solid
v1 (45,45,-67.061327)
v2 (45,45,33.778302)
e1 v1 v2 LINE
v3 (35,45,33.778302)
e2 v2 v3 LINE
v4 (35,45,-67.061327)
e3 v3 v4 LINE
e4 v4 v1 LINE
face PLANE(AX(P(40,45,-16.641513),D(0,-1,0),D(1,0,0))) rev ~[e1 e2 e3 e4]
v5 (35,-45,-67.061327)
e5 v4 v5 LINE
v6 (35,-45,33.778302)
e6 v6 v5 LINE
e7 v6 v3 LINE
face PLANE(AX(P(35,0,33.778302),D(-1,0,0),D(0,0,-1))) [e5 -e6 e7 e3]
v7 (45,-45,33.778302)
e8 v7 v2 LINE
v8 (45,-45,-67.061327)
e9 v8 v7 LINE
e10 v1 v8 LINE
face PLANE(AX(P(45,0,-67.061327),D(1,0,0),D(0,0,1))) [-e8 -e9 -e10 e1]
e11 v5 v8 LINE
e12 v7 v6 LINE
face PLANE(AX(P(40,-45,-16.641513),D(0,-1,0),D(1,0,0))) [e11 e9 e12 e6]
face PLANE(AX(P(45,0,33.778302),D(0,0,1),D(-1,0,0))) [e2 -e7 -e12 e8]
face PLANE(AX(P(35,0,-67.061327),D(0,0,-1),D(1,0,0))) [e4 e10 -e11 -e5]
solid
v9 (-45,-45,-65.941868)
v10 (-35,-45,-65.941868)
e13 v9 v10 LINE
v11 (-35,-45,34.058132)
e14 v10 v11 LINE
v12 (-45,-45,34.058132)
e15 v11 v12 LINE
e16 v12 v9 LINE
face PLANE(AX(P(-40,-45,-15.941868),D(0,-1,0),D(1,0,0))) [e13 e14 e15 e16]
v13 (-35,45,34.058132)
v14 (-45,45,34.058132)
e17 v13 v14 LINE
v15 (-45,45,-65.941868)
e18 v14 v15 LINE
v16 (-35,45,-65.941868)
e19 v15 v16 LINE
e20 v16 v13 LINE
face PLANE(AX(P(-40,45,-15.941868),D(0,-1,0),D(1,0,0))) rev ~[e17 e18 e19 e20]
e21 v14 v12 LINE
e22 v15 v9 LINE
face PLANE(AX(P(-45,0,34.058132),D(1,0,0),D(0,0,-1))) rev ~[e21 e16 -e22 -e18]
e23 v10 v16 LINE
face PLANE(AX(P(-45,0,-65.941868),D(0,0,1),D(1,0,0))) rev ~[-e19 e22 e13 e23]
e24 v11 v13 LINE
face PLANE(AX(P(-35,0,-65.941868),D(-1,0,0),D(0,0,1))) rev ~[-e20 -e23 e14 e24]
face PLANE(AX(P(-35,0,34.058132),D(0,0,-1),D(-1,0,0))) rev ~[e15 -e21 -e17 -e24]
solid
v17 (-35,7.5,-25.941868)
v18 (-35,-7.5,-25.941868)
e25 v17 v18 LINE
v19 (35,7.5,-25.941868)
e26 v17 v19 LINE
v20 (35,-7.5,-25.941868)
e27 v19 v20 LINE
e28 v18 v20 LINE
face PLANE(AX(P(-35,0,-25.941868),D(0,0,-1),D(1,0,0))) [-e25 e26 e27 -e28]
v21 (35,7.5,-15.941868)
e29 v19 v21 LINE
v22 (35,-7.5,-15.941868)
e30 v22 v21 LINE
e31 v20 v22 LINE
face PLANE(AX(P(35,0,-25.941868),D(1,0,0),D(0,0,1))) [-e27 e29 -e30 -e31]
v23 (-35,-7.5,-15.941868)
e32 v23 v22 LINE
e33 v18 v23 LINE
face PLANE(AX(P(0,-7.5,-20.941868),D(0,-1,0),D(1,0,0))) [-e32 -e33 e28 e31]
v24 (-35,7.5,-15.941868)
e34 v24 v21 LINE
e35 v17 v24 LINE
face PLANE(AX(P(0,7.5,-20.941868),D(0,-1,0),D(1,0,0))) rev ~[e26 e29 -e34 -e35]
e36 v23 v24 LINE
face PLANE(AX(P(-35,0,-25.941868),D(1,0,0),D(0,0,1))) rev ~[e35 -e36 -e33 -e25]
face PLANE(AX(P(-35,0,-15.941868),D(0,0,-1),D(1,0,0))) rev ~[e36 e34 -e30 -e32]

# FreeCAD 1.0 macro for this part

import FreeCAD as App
import Part
import Sketcher

V = App.Vector

doc = App.newDocument("Part")
body = doc.addObject("PartDesign::Body", "Body")
body.AllowCompound = True

# Sketch on XZ plane
sketch1 = body.newObject("Sketcher::SketchObject", "Sketch")
sketch1.AttachmentSupport = (doc.getObject("XZ_Plane"), [""])
sketch1.MapMode = "FlatFace"
sketch1.addGeometry(Part.LineSegment(V(-35, 34, 0), V(-45, 34, 0)), False)
sketch1.addGeometry(Part.LineSegment(V(-45, 34, 0), V(-45, -66, 0)), False)
sketch1.addGeometry(Part.LineSegment(V(-45, -66, 0), V(-35, -66, 0)), False)
sketch1.addGeometry(Part.LineSegment(V(-35, -66, 0), V(-35, 34, 0)), False)
sketch1.addGeometry(Part.LineSegment(V(35, 34, 0), V(35, -67, 0)), False)
sketch1.addGeometry(Part.LineSegment(V(35, -67, 0), V(45, -67, 0)), False)
sketch1.addGeometry(Part.LineSegment(V(45, -67, 0), V(45, 34, 0)), False)
sketch1.addGeometry(Part.LineSegment(V(45, 34, 0), V(35, 34, 0)), False)
sketch1.addConstraint(Sketcher.Constraint("Coincident", 0, 2, 1, 1))
sketch1.addConstraint(Sketcher.Constraint("Coincident", 1, 2, 2, 1))
sketch1.addConstraint(Sketcher.Constraint("Coincident", 2, 2, 3, 1))
sketch1.addConstraint(Sketcher.Constraint("Coincident", 3, 2, 0, 1))
sketch1.addConstraint(Sketcher.Constraint("Coincident", 4, 2, 5, 1))
sketch1.addConstraint(Sketcher.Constraint("Coincident", 5, 2, 6, 1))
sketch1.addConstraint(Sketcher.Constraint("Coincident", 6, 2, 7, 1))
sketch1.addConstraint(Sketcher.Constraint("Coincident", 7, 2, 4, 1))
sketch1.addConstraint(Sketcher.Constraint("Horizontal", 0))
sketch1.addConstraint(Sketcher.Constraint("Vertical", 1))
sketch1.addConstraint(Sketcher.Constraint("Horizontal", 2))
sketch1.addConstraint(Sketcher.Constraint("Vertical", 3))
sketch1.addConstraint(Sketcher.Constraint("Vertical", 4))
sketch1.addConstraint(Sketcher.Constraint("Horizontal", 5))
sketch1.addConstraint(Sketcher.Constraint("Vertical", 6))
sketch1.addConstraint(Sketcher.Constraint("Horizontal", 7))
sketch1.addConstraint(Sketcher.Constraint("Equal", 2, 5))
sketch1.addConstraint(Sketcher.Constraint("DistanceX", 0, 2, 0, 1, 10.0))
sketch1.addConstraint(Sketcher.Constraint("DistanceY", 1, 2, 1, 1, 100.0))
sketch1.addConstraint(Sketcher.Constraint("DistanceX", 0, 2, -1, 1, 45.0))
sketch1.addConstraint(Sketcher.Constraint("DistanceX", -1, 1, 4, 2, 35.0))
sketch1.addConstraint(Sketcher.Constraint("DistanceY", 4, 2, 4, 1, 100.839629))
sketch1.addConstraint(Sketcher.Constraint("DistanceY", -1, 1, 6, 2, 33.778302))
sketch1.addConstraint(Sketcher.Constraint("DistanceY", 1, 2, -1, 1, 65.941868))
pad1 = body.newObject("PartDesign::Pad", "Pad")
pad1.Profile = sketch1
pad1.Length = 90
pad1.Midplane = True
body2 = doc.addObject("PartDesign::Body", "Body001")

# Sketch on XZ plane
sketch2 = body2.newObject("Sketcher::SketchObject", "Sketch001")
sketch2.AttachmentSupport = (doc.getObject("XZ_Plane001"), [""])
sketch2.MapMode = "FlatFace"
sketch2.addGeometry(Part.LineSegment(V(-35, -16, 0), V(-35, -26, 0)), False)
sketch2.addGeometry(Part.LineSegment(V(-35, -26, 0), V(35, -26, 0)), False)
sketch2.addGeometry(Part.LineSegment(V(35, -26, 0), V(35, -16, 0)), False)
sketch2.addGeometry(Part.LineSegment(V(35, -16, 0), V(-35, -16, 0)), False)
sketch2.addConstraint(Sketcher.Constraint("Coincident", 0, 2, 1, 1))
sketch2.addConstraint(Sketcher.Constraint("Coincident", 1, 2, 2, 1))
sketch2.addConstraint(Sketcher.Constraint("Coincident", 2, 2, 3, 1))
sketch2.addConstraint(Sketcher.Constraint("Coincident", 3, 2, 0, 1))
sketch2.addConstraint(Sketcher.Constraint("Vertical", 0))
sketch2.addConstraint(Sketcher.Constraint("Horizontal", 1))
sketch2.addConstraint(Sketcher.Constraint("Vertical", 2))
sketch2.addConstraint(Sketcher.Constraint("Horizontal", 3))
sketch2.addConstraint(Sketcher.Constraint("DistanceX", 1, 1, 1, 2, 70.0))
sketch2.addConstraint(Sketcher.Constraint("DistanceY", 0, 2, 0, 1, 10.0))
sketch2.addConstraint(Sketcher.Constraint("DistanceX", 0, 2, -1, 1, 35.0))
sketch2.addConstraint(Sketcher.Constraint("DistanceY", 0, 2, -1, 1, 25.941868))
pad2 = body2.newObject("PartDesign::Pad", "Pad001")
pad2.Profile = sketch2
pad2.Length = 15
pad2.Midplane = True

doc.recompute()
